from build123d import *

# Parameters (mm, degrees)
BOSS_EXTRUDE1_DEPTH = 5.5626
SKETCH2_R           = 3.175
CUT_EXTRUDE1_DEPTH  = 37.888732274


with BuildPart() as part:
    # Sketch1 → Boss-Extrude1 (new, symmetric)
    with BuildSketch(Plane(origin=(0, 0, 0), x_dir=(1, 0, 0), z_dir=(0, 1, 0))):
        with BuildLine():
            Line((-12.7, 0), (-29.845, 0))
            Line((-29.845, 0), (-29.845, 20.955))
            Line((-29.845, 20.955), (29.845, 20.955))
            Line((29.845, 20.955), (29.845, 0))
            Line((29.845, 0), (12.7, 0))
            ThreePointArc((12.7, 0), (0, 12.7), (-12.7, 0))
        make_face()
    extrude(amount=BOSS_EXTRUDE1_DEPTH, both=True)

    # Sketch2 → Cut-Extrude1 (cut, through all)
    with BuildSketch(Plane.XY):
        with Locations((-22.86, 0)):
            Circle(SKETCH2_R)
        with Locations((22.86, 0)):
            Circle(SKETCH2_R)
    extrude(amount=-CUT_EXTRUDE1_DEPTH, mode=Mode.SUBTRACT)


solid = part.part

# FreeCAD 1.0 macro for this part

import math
import FreeCAD as App
import Part
import Sketcher

V = App.Vector
Q = App.Units.Quantity

doc = App.newDocument("Part")
body = doc.addObject("PartDesign::Body", "Body")

# Sketch on XZ plane
sketch1 = body.newObject("Sketcher::SketchObject", "Sketch")
sketch1.AttachmentSupport = (doc.getObject("XZ_Plane"), [""])
sketch1.MapMode = "FlatFace"
sketch1.addGeometry([
    Part.LineSegment(V(-30, 0, 0), V(-13, 0, 0)),  # 0
    Part.ArcOfCircle(Part.Circle(V(0, 0, 0), V(0, 0, 1), 13), math.radians(180), math.radians(360)),  # 1
    Part.LineSegment(V(13, 0, 0), V(30, 0, 0)),  # 2
    Part.LineSegment(V(30, 0, 0), V(30, -21, 0)),  # 3
    Part.LineSegment(V(30, -21, 0), V(-30, -21, 0)),  # 4
    Part.LineSegment(V(-30, -21, 0), V(-30, 0, 0)),  # 5
], False)
sketch1.addConstraint([
    Sketcher.Constraint("Coincident", 0, 2, 1, 1),
    Sketcher.Constraint("Coincident", 1, 2, 2, 1),
    Sketcher.Constraint("Coincident", 2, 2, 3, 1),
    Sketcher.Constraint("Coincident", 3, 2, 4, 1),
    Sketcher.Constraint("Coincident", 4, 2, 5, 1),
    Sketcher.Constraint("Coincident", 5, 2, 0, 1),
    Sketcher.Constraint("Horizontal", 0),
    Sketcher.Constraint("Horizontal", 2),
    Sketcher.Constraint("Vertical", 3),
    Sketcher.Constraint("Horizontal", 4),
    Sketcher.Constraint("Vertical", 5),
    Sketcher.Constraint("Coincident", 1, 3, -1, 1),
    Sketcher.Constraint("Symmetric", 2, 2, 5, 2, -1, 1),
    Sketcher.Constraint("PointOnObject", 0, 2, -1),
    Sketcher.Constraint("Radius", 1, Q("0.5 in")),
    Sketcher.Constraint("DistanceX", 4, 2, 4, 1, Q("2.35 in")),
    Sketcher.Constraint("DistanceY", 3, 2, 3, 1, Q("0.825 in")),
])
pad1 = body.newObject("PartDesign::Pad", "Pad")
pad1.Profile = sketch1
pad1.Length = Q("0.438 in")
pad1.Midplane = True

# Sketch on XY plane
sketch2 = body.newObject("Sketcher::SketchObject", "Sketch001")
sketch2.AttachmentSupport = (doc.getObject("XY_Plane"), [""])
sketch2.MapMode = "FlatFace"
sketch2.addGeometry([
    Part.Circle(V(-22.9, 0, 0), V(0, 0, 1), 3.2),
    Part.Circle(V(22.9, 0, 0), V(0, 0, 1), 3.2),
], False)
sketch2.addConstraint([
    Sketcher.Constraint("Equal", 0, 1),
    Sketcher.Constraint("Symmetric", 0, 3, 1, 3, -1, 1),
    Sketcher.Constraint("PointOnObject", 0, 3, -1),
    Sketcher.Constraint("Diameter", 0, Q("0.25 in")),
    Sketcher.Constraint("DistanceX", 0, 3, -1, 1, Q("0.9 in")),
])
pocket1 = body.newObject("PartDesign::Pocket", "Pocket")
pocket1.Profile = sketch2
pocket1.Type = "ThroughAll"

doc.recompute()
